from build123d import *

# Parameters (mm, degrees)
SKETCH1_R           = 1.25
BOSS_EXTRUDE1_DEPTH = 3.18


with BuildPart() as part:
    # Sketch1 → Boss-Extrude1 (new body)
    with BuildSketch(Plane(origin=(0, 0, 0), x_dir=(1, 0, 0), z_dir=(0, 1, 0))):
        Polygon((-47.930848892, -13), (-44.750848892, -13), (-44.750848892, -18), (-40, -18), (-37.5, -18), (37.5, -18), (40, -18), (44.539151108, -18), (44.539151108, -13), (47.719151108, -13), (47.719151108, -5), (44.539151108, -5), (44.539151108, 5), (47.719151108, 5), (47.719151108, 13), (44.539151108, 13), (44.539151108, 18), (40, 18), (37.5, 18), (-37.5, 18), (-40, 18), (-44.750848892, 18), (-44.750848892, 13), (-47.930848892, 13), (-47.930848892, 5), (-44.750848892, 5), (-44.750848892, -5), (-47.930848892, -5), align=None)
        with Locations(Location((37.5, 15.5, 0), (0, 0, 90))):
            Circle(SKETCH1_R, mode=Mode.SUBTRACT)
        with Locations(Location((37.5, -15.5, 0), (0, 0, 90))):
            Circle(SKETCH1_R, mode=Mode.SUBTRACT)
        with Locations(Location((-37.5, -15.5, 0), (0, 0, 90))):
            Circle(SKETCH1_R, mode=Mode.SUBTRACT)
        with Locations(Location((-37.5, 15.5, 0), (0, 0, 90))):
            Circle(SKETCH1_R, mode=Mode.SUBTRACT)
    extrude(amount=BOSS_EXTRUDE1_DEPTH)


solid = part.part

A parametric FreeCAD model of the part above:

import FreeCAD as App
import Part
import Sketcher


def add_polygon(sketch, points):
    """Adds a closed chain of lines whose ends are joined by coincident constraints."""
    first, n = sketch.GeometryCount, len(points)
    for a, b in zip(points, points[1:] + points[:1]):
        sketch.addGeometry(Part.LineSegment(App.Vector(*a, 0), App.Vector(*b, 0)), False)
    for i in range(n):
        sketch.addConstraint(Sketcher.Constraint("Coincident", first + i, 2, first + (i + 1) % n, 1))

doc = App.newDocument("Part")
body = doc.addObject("PartDesign::Body", "Body")

# Sketch on XZ plane
sketch1 = body.newObject("Sketcher::SketchObject", "Sketch")
sketch1.AttachmentSupport = (doc.getObject("XZ_Plane"), [""])
sketch1.MapMode = "FlatFace"
add_polygon(sketch1, [(-47.930849, 13), (-44.750849, 13), (-44.750849, 18), (44.539151, 18), (44.539151, 13), (47.719151, 13), (47.719151, 5), (44.539151, 5), (44.539151, -5), (47.719151, -5), (47.719151, -13), (44.539151, -13), (44.539151, -18), (-44.750849, -18), (-44.750849, -13), (-47.930849, -13), (-47.930849, -5), (-44.750849, -5), (-44.750849, 5), (-47.930849, 5)])  # lines 0-19
sketch1.addGeometry(Part.Circle(App.Vector(-37.5, 15.5, 0), App.Vector(0, 0, 1), 1.25), False)  # 20
sketch1.addGeometry(Part.Circle(App.Vector(37.5, 15.5, 0), App.Vector(0, 0, 1), 1.25), False)  # 21
sketch1.addGeometry(Part.Circle(App.Vector(-37.5, -15.5, 0), App.Vector(0, 0, 1), 1.25), False)  # 22
sketch1.addGeometry(Part.Circle(App.Vector(37.5, -15.5, 0), App.Vector(0, 0, 1), 1.25), False)  # 23
sketch1.addConstraint([
    Sketcher.Constraint("Horizontal", 0),
    Sketcher.Constraint("Vertical", 1),
    Sketcher.Constraint("Horizontal", 2),
    Sketcher.Constraint("Vertical", 3),
    Sketcher.Constraint("Horizontal", 4),
    Sketcher.Constraint("Vertical", 5),
    Sketcher.Constraint("Horizontal", 6),
    Sketcher.Constraint("Vertical", 7),
    Sketcher.Constraint("Horizontal", 8),
    Sketcher.Constraint("Vertical", 9),
    Sketcher.Constraint("Horizontal", 10),
    Sketcher.Constraint("Vertical", 11),
    Sketcher.Constraint("Horizontal", 12),
    Sketcher.Constraint("Vertical", 13),
    Sketcher.Constraint("Horizontal", 14),
    Sketcher.Constraint("Vertical", 15),
    Sketcher.Constraint("Horizontal", 16),
    Sketcher.Constraint("Vertical", 17),
    Sketcher.Constraint("Horizontal", 18),
    Sketcher.Constraint("Vertical", 19),
    Sketcher.Constraint("Equal", 20, 21),
    Sketcher.Constraint("Equal", 21, 22),
    Sketcher.Constraint("Equal", 22, 23),
    Sketcher.Constraint("Symmetric", 21, 3, 22, 3, -1, 1),
    Sketcher.Constraint("Symmetric", 20, 3, 23, 3, -1, 1),
    Sketcher.Constraint("Symmetric", 20, 3, 21, 3, -2),
    Sketcher.Constraint("Symmetric", 5, 2, 8, 2, -1),
    Sketcher.Constraint("Symmetric", 3, 2, 10, 2, -1),
    Sketcher.Constraint("Symmetric", 1, 2, 12, 2, -1),
    Sketcher.Constraint("Symmetric", 15, 2, 18, 2, -1),
    Sketcher.Constraint("Horizontal", 0, 2, 3, 2),
    Sketcher.Constraint("Horizontal", 10, 2, 13, 2),
    Sketcher.Constraint("Horizontal", 8, 2, 15, 2),
    Sketcher.Constraint("Vertical", 3, 2, 6, 2),
    Sketcher.Constraint("Vertical", 13, 2, 16, 2),
    Sketcher.Constraint("Equal", 0, 4),
    Sketcher.Constraint("Diameter", 20, 2.5),
    Sketcher.Constraint("DistanceY", 1, 1, 1, 2, 5.0),
    Sketcher.Constraint("DistanceY", 5, 2, 5, 1, 8.0),
    Sketcher.Constraint("DistanceY", 7, 2, 7, 1, 10.0),
    Sketcher.Constraint("DistanceX", 20, 3, 21, 3, 75.0),
    Sketcher.Constraint("DistanceY", 22, 3, 20, 3, 31.0),
    Sketcher.Constraint("DistanceX", 0, 1, 0, 2, 3.18),
    Sketcher.Constraint("DistanceX", 2, 1, 2, 2, 89.29),
    Sketcher.Constraint("DistanceX", 0, 2, -1, 1, 44.750849),
])
pad1 = body.newObject("PartDesign::Pad", "Pad")
pad1.Profile = sketch1
pad1.Length = 3.18
pad1.Reversed = True

doc.recompute()
